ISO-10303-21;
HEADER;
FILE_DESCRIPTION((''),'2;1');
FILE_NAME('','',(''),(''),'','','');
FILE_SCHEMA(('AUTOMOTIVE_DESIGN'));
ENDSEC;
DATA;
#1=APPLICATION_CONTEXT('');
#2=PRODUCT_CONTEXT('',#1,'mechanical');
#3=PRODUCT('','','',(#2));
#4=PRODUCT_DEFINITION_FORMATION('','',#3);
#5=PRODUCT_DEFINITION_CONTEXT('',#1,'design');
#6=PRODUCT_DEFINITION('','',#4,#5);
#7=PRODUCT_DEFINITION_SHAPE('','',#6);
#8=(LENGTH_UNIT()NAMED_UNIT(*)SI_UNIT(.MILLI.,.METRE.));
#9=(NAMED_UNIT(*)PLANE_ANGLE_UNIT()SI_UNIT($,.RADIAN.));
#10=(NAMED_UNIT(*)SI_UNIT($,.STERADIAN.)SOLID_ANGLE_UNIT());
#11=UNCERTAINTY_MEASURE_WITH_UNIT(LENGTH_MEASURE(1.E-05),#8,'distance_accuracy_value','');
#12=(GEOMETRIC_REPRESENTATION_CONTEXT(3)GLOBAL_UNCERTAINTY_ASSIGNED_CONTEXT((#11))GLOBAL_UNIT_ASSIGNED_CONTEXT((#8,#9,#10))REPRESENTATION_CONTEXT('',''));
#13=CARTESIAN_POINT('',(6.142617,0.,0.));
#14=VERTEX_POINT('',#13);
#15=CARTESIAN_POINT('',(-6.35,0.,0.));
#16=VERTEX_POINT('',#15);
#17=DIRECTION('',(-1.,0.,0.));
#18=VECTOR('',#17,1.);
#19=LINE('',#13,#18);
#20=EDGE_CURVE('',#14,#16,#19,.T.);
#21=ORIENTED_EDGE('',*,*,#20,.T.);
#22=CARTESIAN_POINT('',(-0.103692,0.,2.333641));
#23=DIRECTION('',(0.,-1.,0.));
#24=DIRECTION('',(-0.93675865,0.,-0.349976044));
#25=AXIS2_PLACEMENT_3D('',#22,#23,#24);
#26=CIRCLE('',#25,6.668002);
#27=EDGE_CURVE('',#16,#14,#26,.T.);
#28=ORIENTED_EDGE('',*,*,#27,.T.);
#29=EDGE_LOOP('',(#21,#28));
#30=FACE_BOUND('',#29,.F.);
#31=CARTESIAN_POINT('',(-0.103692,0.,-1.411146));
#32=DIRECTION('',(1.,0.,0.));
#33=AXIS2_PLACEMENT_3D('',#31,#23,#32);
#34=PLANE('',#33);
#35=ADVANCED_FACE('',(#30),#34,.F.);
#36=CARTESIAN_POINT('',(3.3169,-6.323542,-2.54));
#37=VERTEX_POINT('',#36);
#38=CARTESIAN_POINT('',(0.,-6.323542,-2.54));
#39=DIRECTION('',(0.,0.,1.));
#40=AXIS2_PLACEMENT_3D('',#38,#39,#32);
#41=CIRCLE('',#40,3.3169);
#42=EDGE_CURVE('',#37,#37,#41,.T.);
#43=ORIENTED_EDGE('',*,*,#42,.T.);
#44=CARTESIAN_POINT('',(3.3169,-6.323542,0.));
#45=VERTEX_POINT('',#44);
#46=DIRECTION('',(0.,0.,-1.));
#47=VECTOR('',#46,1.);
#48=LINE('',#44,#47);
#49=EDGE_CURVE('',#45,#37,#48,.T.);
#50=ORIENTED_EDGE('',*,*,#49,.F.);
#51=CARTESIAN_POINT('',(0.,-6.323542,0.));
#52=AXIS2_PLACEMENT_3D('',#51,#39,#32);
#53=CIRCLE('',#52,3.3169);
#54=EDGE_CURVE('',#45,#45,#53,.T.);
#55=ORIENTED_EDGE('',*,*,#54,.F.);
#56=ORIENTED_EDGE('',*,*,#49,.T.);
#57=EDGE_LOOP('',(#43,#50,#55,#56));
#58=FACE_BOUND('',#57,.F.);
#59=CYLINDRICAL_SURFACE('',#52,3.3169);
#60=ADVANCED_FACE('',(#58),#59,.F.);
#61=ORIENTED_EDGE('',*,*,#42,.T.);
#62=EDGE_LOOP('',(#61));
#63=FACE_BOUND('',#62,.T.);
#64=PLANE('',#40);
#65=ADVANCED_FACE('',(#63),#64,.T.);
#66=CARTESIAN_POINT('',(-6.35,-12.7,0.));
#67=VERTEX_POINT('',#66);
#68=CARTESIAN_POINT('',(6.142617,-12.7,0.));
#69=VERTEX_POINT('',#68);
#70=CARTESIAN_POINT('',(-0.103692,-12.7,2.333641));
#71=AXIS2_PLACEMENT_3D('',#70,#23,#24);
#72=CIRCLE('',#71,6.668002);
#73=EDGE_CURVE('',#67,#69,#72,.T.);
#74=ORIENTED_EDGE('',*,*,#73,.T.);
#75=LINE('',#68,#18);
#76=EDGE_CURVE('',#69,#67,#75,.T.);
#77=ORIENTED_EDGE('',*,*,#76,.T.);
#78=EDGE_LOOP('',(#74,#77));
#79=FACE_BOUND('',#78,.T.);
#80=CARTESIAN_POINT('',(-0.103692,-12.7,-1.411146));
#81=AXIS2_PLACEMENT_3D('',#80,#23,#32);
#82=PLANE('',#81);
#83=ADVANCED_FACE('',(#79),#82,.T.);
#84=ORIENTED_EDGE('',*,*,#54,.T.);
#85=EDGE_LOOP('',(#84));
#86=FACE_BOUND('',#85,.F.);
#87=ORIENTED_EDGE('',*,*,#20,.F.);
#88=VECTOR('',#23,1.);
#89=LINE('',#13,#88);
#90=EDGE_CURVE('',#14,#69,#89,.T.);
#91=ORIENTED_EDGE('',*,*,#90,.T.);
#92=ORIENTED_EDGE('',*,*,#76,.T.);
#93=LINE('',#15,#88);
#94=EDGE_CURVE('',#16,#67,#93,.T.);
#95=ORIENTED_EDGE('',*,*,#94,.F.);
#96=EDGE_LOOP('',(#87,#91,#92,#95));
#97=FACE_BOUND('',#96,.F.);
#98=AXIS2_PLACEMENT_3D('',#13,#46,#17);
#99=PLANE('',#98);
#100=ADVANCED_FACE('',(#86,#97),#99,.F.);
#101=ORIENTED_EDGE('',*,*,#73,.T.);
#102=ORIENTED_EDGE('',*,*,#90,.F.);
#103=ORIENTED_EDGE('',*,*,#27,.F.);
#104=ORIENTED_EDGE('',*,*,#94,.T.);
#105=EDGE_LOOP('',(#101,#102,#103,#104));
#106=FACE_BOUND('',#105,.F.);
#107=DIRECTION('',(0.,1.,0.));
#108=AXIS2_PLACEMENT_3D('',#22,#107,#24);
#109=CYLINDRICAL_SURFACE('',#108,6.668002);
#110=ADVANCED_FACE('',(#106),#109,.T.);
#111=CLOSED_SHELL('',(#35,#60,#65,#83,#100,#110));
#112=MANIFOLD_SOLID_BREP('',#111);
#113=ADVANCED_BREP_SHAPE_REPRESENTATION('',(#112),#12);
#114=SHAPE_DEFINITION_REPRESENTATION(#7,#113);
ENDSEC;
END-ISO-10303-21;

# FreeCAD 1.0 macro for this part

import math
import FreeCAD as App
import Part
import Sketcher
Q = App.Units.Quantity

doc = App.newDocument("Part")
body = doc.addObject("PartDesign::Body", "Body")

# Sketch on XZ plane
sketch1 = doc.addObject("Sketcher::SketchObject", "Sketch")
body.addObject(sketch1)
sketch1.AttachmentSupport = (doc.XZ_Plane, [""])
sketch1.MapMode = "FlatFace"
sketch1.addGeometry(Part.ArcOfCircle(Part.Circle(App.Vector(0, 2, 0), App.Vector(0, 0, 1), 7), math.radians(-160), math.radians(-20)), False)
sketch1.addGeometry(Part.LineSegment(App.Vector(6, 0, 0), App.Vector(-6, 0, 0)), False)
sketch1.addConstraint(Sketcher.Constraint("Coincident", 0, 1, 1, 2))
sketch1.addConstraint(Sketcher.Constraint("Coincident", 1, 1, 0, 2))
sketch1.addConstraint(Sketcher.Constraint("Horizontal", 1))
sketch1.addConstraint(Sketcher.Constraint("PointOnObject", 0, 1, -1))
sketch1.addConstraint(Sketcher.Constraint("DistanceX", 0, 1, -1, 1, Q("0.25 in")))
sketch1.addConstraint(Sketcher.Constraint("Radius", 0, Q("6.668002 mm")))
sketch1.addConstraint(Sketcher.Constraint("DistanceX", 1, 2, 1, 1, Q("12.492617 mm")))
pad1 = doc.addObject("PartDesign::Pad", "Pad")
body.addObject(pad1)
pad1.Profile = sketch1
pad1.Length = Q("0.5 in")

# Sketch on XY plane
sketch2 = doc.addObject("Sketcher::SketchObject", "Sketch001")
body.addObject(sketch2)
sketch2.AttachmentSupport = (doc.XY_Plane, [""])
sketch2.MapMode = "FlatFace"
sketch2.addGeometry(Part.Circle(App.Vector(0, -6.3, 0), App.Vector(0, 0, 1), 3.3), False)
sketch2.addConstraint(Sketcher.Constraint("PointOnObject", 0, 3, -2))
sketch2.addConstraint(Sketcher.Constraint("Diameter", 0, Q("6.6338 mm")))
sketch2.addConstraint(Sketcher.Constraint("DistanceY", 0, 3, -1, 1, Q("6.323542 mm")))
pocket1 = doc.addObject("PartDesign::Pocket", "Pocket")
body.addObject(pocket1)
pocket1.Profile = sketch2
pocket1.Length = Q("0.1 in")

doc.recompute()
